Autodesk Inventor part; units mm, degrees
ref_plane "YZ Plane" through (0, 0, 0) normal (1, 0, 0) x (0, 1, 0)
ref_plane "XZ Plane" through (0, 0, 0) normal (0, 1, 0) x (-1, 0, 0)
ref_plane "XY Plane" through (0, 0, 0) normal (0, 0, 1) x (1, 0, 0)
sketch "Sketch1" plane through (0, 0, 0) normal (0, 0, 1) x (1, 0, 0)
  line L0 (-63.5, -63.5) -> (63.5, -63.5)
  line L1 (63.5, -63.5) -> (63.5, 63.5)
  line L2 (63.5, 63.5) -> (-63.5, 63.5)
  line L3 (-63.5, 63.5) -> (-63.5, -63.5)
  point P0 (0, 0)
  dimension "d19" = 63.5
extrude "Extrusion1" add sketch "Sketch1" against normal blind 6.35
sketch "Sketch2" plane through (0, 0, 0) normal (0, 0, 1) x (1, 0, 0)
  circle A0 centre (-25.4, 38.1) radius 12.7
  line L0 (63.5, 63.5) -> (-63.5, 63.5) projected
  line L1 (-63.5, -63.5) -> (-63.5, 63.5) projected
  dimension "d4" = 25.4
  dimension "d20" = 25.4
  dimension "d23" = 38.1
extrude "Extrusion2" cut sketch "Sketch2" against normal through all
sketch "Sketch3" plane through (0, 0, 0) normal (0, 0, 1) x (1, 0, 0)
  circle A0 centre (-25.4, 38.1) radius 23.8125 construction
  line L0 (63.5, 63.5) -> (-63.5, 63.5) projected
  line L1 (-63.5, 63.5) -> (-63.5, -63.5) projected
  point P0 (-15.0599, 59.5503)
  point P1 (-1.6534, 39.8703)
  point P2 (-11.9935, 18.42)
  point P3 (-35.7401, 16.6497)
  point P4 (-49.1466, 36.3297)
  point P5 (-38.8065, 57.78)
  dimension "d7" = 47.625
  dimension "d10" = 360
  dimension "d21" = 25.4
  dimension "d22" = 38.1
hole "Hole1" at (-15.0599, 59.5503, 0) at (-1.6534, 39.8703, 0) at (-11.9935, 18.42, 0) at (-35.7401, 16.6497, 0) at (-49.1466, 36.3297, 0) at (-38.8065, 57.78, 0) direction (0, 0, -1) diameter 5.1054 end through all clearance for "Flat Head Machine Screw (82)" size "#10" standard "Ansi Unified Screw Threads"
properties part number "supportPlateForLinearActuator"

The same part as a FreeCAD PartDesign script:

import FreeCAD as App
import Part
import Sketcher

V = App.Vector
Q = App.Units.Quantity

doc = App.newDocument("Part")
body = doc.addObject("PartDesign::Body", "Body")

sketch1 = body.newObject("Sketcher::SketchObject", "Sketch")
sketch1.AttachmentSupport = (doc.getObject("XY_Plane"), [""])
sketch1.MapMode = "FlatFace"
sketch1.addGeometry([
    Part.LineSegment(V(-64, 64, 0), V(-64, -64, 0)),
    Part.LineSegment(V(-64, -64, 0), V(64, -64, 0)),
    Part.LineSegment(V(64, -64, 0), V(64, 64, 0)),
    Part.LineSegment(V(64, 64, 0), V(-64, 64, 0)),
], False)
sketch1.addConstraint([
    Sketcher.Constraint("Coincident", 0, 2, 1, 1),
    Sketcher.Constraint("Coincident", 1, 2, 2, 1),
    Sketcher.Constraint("Coincident", 2, 2, 3, 1),
    Sketcher.Constraint("Coincident", 3, 2, 0, 1),
    Sketcher.Constraint("Vertical", 0),
    Sketcher.Constraint("Horizontal", 1),
    Sketcher.Constraint("Vertical", 2),
    Sketcher.Constraint("Horizontal", 3),
    Sketcher.Constraint("Symmetric", 0, 2, 2, 2, -1, 1),
    Sketcher.Constraint("Equal", 3, 0),
    Sketcher.Constraint("DistanceX", 0, 2, -1, 1, Q("2.5 in")),
])
pad1 = body.newObject("PartDesign::Pad", "Pad")
pad1.Profile = sketch1
pad1.Length = Q("0.25 in")
pad1.Reversed = True

sketch2 = body.newObject("Sketcher::SketchObject", "Sketch001")
sketch2.AttachmentSupport = (doc.getObject("XY_Plane"), [""])
sketch2.MapMode = "FlatFace"
sketch2.addGeometry(Part.Circle(V(-25, 38, 0), V(0, 0, 1), 13), False)
sketch2.addConstraint([
    Sketcher.Constraint("Diameter", 0, Q("1 in")),
    Sketcher.Constraint("DistanceX", 0, 3, -1, 1, Q("1 in")),
    Sketcher.Constraint("DistanceY", -1, 1, 0, 3, Q("1.5 in")),
])
pocket1 = body.newObject("PartDesign::Pocket", "Pocket")
pocket1.Profile = sketch2
pocket1.Type = "ThroughAll"

sketch3 = body.newObject("Sketcher::SketchObject", "Sketch002")
sketch3.AttachmentSupport = (doc.getObject("XY_Plane"), [""])
sketch3.MapMode = "FlatFace"
sketch3.addGeometry([
    Part.Circle(V(-15.1, 59.6, 0), V(0, 0, 1), 2.6),
    Part.Circle(V(-1.7, 39.9, 0), V(0, 0, 1), 2.6),
    Part.Circle(V(-12, 18.4, 0), V(0, 0, 1), 2.6),
    Part.Circle(V(-35.7, 16.6, 0), V(0, 0, 1), 2.6),
    Part.Circle(V(-49.1, 36.3, 0), V(0, 0, 1), 2.6),
    Part.Circle(V(-38.8, 57.8, 0), V(0, 0, 1), 2.6),
], False)
sketch3.addConstraint([
    Sketcher.Constraint("Equal", 0, 1),
    Sketcher.Constraint("Equal", 1, 2),
    Sketcher.Constraint("Equal", 2, 3),
    Sketcher.Constraint("Equal", 3, 4),
    Sketcher.Constraint("Equal", 4, 5),
    Sketcher.Constraint("Diameter", 0, Q("0.201 in")),
    Sketcher.Constraint("DistanceX", 3, 3, 1, 3, Q("1.342 in")),
    Sketcher.Constraint("DistanceY", 3, 3, 0, 3, Q("1.689 in")),
    Sketcher.Constraint("DistanceX", 4, 3, 0, 3, Q("1.342 in")),
    Sketcher.Constraint("DistanceX", 0, 3, -1, 1, Q("0.5929 in")),
    Sketcher.Constraint("DistanceY", -1, 1, 0, 3, Q("2.3445 in")),
    Sketcher.Constraint("DistanceX", 1, 3, -1, 1, Q("0.0651 in")),
    Sketcher.Constraint("DistanceY", -1, 1, 1, 3, Q("1.5697 in")),
    Sketcher.Constraint("DistanceY", -1, 1, 2, 3, Q("0.7252 in")),
    Sketcher.Constraint("DistanceY", -1, 1, 4, 3, Q("1.4303 in")),
    Sketcher.Constraint("DistanceY", -1, 1, 5, 3, Q("2.2748 in")),
    Sketcher.Constraint("DistanceX", 2, 3, 1, 3, Q("0.4071 in")),
    Sketcher.Constraint("DistanceX", 4, 3, 5, 3, Q("0.4071 in")),
])
doc.recompute()
hole = body.newObject("PartDesign::Hole", "Hole")
hole.Profile = sketch3
hole.ThreadType = "None"
hole.Diameter = Q("0.201 in")
hole.DepthType = "ThroughAll"

doc.recompute()
